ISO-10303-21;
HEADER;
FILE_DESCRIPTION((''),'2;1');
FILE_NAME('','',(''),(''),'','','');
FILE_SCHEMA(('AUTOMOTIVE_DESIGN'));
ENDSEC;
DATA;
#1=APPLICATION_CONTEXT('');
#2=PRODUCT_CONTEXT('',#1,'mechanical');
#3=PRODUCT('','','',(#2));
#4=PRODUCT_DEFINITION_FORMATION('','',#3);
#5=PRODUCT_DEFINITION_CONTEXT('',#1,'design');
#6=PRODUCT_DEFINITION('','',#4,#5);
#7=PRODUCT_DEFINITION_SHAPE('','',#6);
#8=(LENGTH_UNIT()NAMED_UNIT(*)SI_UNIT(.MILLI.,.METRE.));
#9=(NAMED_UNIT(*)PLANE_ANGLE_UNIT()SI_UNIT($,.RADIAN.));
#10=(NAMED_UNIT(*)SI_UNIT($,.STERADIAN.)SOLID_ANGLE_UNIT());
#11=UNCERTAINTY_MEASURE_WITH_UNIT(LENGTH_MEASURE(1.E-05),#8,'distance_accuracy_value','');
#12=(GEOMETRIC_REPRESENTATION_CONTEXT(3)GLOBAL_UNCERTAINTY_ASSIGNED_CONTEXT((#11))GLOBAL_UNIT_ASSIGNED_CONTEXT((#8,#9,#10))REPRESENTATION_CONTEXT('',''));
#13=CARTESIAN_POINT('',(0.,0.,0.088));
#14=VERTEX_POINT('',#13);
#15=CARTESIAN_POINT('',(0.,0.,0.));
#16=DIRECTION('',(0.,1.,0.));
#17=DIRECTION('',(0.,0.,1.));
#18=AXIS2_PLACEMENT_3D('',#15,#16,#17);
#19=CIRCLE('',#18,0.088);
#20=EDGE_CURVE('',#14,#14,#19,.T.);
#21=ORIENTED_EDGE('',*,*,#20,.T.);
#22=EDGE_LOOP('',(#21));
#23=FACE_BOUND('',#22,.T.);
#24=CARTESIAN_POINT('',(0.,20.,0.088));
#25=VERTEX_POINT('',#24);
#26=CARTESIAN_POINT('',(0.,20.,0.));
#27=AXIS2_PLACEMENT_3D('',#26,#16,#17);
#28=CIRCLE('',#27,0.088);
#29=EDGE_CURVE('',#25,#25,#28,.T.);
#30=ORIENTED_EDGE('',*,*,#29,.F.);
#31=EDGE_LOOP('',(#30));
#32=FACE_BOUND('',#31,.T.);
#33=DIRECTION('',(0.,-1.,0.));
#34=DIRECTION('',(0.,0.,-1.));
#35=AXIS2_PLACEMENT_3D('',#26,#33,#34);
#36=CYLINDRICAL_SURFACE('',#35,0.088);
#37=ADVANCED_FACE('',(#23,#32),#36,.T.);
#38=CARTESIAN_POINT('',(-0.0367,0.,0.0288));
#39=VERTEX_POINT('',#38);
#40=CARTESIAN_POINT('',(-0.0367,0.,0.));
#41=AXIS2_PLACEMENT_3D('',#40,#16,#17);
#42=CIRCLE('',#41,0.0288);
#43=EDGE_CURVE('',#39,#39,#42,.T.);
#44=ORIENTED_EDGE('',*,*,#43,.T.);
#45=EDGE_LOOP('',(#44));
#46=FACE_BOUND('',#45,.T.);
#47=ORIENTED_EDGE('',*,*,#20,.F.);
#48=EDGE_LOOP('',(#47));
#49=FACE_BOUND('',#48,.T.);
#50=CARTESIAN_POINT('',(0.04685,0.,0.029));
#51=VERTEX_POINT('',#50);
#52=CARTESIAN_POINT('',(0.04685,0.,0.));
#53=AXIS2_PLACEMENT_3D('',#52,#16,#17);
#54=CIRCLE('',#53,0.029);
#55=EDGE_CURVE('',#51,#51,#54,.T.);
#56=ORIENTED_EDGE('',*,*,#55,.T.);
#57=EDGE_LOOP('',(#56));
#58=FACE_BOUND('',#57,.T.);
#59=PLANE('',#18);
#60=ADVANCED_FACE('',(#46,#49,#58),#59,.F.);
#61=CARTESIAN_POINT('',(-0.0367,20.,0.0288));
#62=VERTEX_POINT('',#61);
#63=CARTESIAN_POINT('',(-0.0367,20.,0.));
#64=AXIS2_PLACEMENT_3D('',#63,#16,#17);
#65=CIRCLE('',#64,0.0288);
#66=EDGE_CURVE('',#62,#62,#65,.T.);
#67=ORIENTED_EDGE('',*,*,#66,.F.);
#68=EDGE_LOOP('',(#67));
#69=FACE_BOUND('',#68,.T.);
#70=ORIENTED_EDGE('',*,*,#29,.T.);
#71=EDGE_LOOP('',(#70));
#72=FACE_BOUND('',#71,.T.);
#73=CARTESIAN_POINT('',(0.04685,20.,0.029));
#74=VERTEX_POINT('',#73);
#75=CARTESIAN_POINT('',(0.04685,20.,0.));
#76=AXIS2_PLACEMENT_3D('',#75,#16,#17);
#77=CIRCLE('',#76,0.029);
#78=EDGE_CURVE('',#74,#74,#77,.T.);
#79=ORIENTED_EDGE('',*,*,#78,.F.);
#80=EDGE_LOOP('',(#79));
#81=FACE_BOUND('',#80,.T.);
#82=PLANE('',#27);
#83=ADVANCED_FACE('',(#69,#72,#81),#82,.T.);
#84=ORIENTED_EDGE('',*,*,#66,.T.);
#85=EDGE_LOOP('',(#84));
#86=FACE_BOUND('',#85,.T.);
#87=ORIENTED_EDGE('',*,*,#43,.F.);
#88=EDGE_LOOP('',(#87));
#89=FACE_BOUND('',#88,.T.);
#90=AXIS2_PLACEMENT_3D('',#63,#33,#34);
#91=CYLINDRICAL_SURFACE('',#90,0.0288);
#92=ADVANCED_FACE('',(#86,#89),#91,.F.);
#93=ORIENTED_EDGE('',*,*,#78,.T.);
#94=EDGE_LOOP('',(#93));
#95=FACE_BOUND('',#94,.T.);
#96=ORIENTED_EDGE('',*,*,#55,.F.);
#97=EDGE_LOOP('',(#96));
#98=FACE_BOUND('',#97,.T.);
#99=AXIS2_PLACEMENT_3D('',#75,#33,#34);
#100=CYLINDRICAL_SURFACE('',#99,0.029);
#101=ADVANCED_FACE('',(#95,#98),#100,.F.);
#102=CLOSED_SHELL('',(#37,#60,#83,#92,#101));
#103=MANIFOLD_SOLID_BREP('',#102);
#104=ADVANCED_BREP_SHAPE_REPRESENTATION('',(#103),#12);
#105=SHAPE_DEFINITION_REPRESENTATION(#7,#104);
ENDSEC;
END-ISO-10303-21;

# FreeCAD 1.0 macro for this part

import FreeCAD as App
import Part
import Sketcher
Q = App.Units.Quantity

doc = App.newDocument("Part")
body = doc.addObject("PartDesign::Body", "Body")

# Sketch on XZ plane
sketch1 = body.newObject("Sketcher::SketchObject", "Sketch")
sketch1.AttachmentSupport = (doc.getObject("XZ_Plane"), [""])
sketch1.MapMode = "FlatFace"
sketch1.addGeometry([
    Part.Circle(App.Vector(0, 0, 0), App.Vector(0, 0, 1), 0.088),
    Part.Circle(App.Vector(-0.0367, 0, 0), App.Vector(0, 0, 1), 0.0288),
    Part.Circle(App.Vector(0.04685, 0, 0), App.Vector(0, 0, 1), 0.029),
], False)
sketch1.addConstraint([
    Sketcher.Constraint("Coincident", 0, 3, -1, 1),
    Sketcher.Constraint("PointOnObject", 1, 3, -1),
    Sketcher.Constraint("PointOnObject", 2, 3, -1),
    Sketcher.Constraint("Diameter", 0, Q("0.176 mm")),
    Sketcher.Constraint("Diameter", 2, Q("0.058 mm")),
    Sketcher.Constraint("Diameter", 1, Q("0.0576 mm")),
    Sketcher.Constraint("DistanceX", 1, 3, -1, 1, Q("0.0367 mm")),
    Sketcher.Constraint("DistanceX", -1, 1, 2, 3, Q("0.04685 mm")),
])
pad1 = body.newObject("PartDesign::Pad", "Pad")
pad1.Profile = sketch1
pad1.Length = 20
pad1.Reversed = True

doc.recompute()
